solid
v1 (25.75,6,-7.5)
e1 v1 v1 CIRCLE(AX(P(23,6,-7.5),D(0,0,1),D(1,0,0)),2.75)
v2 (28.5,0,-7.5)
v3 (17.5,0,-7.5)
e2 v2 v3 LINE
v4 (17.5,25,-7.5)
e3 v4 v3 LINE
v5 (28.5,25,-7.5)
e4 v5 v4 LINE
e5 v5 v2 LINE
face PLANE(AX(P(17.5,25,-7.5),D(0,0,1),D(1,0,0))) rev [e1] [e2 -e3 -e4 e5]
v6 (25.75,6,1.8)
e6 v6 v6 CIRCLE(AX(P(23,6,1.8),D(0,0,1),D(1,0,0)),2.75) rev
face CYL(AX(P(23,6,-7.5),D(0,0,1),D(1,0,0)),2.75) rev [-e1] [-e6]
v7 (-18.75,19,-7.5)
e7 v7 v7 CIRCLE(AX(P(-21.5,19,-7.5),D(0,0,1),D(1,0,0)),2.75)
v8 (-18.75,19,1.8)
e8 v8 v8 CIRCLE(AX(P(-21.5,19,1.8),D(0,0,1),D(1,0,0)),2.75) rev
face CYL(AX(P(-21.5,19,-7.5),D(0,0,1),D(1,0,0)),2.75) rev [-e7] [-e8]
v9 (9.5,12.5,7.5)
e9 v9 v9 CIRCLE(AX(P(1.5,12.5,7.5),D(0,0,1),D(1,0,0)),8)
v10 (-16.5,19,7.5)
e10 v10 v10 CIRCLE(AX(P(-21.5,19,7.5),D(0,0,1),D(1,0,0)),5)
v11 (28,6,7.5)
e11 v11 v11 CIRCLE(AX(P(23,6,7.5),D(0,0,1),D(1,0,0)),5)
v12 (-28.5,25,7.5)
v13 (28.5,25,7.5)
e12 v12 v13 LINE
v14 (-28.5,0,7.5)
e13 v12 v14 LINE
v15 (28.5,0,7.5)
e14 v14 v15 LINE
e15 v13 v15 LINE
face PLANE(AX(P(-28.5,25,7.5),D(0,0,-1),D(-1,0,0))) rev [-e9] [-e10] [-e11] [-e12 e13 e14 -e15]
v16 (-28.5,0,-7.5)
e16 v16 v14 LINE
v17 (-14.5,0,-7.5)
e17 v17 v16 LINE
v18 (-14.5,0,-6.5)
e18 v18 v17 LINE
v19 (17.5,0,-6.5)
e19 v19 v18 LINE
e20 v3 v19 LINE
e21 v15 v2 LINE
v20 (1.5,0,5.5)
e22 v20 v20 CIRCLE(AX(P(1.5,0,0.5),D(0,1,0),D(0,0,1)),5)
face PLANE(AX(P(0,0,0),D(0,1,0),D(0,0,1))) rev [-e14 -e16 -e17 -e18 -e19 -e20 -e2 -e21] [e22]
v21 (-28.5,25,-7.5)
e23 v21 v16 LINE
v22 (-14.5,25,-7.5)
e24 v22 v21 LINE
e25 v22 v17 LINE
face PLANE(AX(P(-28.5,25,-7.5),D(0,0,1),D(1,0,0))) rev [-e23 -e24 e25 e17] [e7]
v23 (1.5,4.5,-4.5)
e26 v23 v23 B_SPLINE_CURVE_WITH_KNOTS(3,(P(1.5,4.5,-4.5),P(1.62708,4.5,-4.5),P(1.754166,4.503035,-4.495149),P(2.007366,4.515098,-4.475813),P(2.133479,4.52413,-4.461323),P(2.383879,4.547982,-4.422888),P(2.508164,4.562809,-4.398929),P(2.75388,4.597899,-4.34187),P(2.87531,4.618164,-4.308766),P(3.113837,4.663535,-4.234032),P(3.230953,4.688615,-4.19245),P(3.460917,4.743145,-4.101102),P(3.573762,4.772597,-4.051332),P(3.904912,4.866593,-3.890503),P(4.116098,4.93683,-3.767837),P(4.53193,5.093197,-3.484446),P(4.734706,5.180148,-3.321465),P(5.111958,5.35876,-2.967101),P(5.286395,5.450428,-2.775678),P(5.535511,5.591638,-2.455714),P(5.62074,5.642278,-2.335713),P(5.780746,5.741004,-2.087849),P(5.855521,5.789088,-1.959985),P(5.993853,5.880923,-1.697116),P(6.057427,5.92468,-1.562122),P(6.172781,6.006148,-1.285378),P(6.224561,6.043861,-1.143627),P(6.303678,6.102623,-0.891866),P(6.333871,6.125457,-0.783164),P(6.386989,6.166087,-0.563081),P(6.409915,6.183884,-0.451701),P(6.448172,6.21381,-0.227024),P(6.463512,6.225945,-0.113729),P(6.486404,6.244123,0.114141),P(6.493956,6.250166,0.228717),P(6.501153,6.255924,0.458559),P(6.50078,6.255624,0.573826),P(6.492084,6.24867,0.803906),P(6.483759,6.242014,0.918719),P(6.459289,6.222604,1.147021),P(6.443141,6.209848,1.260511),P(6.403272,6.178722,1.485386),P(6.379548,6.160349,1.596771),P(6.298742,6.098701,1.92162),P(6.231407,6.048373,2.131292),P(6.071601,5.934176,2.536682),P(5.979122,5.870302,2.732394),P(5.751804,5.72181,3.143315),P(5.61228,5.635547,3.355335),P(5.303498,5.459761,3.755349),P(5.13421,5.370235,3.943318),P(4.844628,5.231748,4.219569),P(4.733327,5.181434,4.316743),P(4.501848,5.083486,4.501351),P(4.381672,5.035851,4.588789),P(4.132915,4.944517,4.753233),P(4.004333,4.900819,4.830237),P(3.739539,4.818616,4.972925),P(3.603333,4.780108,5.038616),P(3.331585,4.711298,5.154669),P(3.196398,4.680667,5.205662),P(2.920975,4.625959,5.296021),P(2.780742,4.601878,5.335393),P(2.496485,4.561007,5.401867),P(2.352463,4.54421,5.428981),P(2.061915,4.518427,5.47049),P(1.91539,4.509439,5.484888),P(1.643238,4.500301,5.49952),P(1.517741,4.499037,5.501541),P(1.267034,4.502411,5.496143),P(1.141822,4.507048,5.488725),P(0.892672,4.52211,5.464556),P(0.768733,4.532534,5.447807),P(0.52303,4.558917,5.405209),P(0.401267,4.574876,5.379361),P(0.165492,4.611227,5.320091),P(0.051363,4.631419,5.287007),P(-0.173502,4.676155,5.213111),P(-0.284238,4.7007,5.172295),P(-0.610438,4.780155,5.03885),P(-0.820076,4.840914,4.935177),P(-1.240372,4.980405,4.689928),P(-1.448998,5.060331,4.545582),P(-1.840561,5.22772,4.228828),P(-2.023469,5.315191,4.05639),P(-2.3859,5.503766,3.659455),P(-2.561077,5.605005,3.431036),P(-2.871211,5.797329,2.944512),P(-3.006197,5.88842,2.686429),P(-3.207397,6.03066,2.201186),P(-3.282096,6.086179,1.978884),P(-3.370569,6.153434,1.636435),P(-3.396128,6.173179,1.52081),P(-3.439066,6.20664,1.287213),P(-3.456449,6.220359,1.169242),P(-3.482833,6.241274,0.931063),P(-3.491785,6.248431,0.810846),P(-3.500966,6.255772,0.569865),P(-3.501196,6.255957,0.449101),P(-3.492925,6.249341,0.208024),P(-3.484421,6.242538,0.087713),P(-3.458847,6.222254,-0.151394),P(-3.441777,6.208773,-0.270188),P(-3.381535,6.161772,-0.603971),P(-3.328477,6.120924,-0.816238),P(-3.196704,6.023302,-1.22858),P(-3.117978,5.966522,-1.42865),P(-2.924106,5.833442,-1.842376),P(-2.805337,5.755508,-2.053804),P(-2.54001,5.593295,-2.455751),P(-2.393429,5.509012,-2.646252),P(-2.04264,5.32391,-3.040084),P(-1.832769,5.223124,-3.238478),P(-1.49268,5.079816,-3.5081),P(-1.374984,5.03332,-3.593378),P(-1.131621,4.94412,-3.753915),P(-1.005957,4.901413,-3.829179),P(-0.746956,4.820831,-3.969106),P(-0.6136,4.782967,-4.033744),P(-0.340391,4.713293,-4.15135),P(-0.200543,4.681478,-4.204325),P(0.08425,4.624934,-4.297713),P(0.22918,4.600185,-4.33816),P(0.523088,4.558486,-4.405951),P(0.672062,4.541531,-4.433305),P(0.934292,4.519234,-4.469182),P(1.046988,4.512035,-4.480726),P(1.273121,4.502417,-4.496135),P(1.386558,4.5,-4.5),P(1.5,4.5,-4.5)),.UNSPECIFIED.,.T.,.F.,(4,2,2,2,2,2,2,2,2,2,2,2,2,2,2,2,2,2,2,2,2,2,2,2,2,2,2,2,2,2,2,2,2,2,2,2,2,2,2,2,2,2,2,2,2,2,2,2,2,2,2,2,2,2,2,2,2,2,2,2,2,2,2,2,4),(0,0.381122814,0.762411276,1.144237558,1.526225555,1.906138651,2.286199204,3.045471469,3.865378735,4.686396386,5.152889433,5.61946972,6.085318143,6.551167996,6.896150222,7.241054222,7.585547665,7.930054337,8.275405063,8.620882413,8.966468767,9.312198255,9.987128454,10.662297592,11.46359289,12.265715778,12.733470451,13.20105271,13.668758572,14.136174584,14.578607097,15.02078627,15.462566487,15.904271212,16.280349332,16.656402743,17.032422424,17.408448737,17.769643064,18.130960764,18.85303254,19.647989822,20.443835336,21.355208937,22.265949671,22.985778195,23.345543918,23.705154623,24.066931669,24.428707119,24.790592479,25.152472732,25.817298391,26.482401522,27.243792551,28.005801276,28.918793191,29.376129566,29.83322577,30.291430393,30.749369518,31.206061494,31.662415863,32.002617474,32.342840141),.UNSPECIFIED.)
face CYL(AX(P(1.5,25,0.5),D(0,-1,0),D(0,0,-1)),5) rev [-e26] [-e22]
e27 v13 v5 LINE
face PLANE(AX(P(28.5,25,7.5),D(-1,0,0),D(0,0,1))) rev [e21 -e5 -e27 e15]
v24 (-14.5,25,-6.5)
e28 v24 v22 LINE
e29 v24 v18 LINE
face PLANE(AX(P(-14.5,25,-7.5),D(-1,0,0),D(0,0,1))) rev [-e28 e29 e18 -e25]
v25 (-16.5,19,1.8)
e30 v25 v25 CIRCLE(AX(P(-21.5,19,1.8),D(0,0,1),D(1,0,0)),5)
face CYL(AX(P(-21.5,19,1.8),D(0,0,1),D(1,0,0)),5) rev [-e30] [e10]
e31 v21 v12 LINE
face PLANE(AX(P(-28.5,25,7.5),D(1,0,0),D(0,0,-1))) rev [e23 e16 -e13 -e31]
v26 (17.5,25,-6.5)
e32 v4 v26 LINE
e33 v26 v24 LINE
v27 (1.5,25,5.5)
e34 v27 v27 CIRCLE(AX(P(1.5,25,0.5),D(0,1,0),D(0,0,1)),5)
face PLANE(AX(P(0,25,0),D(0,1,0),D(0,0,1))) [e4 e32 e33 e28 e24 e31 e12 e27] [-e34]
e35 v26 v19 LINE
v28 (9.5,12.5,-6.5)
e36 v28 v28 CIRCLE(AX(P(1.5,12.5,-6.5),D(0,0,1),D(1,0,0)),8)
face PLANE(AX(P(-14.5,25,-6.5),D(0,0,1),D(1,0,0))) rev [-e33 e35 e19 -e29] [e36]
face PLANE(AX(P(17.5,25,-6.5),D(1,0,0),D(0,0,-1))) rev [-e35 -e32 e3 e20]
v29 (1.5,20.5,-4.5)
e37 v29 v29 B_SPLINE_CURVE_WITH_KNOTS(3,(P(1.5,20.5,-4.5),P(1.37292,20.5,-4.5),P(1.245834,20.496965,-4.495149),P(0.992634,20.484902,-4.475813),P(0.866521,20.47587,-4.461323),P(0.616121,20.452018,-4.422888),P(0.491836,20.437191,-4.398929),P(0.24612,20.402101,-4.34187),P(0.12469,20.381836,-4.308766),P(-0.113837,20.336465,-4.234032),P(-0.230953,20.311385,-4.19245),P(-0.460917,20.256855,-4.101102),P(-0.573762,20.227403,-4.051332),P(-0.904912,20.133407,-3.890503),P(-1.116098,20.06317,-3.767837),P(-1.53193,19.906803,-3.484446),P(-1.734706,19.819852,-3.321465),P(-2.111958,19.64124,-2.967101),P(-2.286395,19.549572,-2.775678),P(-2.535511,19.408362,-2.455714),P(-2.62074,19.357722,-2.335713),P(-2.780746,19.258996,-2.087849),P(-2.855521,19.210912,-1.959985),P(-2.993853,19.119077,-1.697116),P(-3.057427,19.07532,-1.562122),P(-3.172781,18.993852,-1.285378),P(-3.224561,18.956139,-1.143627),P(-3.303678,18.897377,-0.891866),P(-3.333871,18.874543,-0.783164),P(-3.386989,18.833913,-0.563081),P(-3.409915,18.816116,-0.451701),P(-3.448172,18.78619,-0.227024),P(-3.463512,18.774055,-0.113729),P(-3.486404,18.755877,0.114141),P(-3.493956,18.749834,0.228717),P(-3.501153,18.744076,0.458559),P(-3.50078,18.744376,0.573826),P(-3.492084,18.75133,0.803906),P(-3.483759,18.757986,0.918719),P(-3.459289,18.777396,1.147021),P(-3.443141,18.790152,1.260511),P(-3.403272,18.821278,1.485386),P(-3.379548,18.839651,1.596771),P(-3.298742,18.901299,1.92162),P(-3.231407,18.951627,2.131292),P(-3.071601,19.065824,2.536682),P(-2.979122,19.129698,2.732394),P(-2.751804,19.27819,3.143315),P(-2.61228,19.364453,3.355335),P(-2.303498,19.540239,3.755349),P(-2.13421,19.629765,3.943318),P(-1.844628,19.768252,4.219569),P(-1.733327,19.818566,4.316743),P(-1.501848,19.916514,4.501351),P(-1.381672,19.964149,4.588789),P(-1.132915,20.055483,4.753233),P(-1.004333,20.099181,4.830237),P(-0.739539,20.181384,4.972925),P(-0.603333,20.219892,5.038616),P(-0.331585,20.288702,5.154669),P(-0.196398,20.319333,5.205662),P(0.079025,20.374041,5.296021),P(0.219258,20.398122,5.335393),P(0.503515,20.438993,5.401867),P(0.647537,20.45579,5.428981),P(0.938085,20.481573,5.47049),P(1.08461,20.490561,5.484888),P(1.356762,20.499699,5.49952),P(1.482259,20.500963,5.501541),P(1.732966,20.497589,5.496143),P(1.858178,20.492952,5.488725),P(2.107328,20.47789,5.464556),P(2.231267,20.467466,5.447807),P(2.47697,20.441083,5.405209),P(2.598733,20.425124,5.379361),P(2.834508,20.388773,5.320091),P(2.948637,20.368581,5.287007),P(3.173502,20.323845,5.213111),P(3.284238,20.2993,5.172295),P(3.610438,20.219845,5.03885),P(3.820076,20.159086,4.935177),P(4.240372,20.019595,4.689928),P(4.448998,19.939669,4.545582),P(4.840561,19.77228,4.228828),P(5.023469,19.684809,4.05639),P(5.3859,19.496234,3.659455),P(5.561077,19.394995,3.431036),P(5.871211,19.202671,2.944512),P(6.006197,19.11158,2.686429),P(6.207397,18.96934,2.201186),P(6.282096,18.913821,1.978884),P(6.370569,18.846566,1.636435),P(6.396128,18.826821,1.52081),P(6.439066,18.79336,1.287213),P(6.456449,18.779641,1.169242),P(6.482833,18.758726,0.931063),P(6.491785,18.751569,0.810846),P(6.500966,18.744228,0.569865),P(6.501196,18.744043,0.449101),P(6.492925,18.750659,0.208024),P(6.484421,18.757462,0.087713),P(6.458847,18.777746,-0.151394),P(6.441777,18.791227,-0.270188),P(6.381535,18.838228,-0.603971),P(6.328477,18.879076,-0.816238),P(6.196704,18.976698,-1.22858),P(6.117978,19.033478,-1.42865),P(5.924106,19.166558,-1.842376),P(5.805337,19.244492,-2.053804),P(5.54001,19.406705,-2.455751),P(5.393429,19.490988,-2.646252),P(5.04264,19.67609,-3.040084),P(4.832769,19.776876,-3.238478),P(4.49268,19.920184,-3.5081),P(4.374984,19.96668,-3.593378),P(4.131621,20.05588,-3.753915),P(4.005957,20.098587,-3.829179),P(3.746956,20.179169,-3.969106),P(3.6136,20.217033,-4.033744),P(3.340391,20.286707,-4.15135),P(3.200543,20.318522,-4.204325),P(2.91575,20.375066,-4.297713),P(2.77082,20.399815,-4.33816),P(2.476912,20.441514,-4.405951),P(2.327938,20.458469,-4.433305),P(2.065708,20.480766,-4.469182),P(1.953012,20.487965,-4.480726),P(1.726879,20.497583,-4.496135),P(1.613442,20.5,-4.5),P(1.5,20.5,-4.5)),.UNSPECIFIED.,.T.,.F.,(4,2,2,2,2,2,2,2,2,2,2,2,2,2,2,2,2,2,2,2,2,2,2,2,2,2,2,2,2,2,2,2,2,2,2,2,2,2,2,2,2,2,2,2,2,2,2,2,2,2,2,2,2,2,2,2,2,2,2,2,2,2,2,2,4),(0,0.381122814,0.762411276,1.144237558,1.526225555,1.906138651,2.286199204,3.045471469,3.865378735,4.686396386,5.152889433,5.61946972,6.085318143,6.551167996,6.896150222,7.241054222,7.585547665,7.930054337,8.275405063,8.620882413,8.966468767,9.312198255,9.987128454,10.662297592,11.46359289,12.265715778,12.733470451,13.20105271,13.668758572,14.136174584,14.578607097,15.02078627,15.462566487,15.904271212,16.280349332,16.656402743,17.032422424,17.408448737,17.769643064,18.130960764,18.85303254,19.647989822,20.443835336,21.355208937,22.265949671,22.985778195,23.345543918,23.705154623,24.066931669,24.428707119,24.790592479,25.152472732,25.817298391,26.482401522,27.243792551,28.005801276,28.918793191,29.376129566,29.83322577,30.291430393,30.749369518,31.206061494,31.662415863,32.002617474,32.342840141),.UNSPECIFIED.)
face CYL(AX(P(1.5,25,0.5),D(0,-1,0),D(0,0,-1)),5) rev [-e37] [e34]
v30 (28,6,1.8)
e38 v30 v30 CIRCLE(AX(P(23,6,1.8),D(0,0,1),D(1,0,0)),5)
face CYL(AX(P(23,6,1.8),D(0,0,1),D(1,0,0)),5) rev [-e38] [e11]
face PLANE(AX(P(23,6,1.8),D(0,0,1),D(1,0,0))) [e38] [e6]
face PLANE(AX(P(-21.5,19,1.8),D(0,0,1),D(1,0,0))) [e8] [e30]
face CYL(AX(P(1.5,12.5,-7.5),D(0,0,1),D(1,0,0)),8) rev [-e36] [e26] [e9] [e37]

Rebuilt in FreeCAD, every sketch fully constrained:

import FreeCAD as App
import Part
import Sketcher
Q = App.Units.Quantity

doc = App.newDocument("Part")
body = doc.addObject("PartDesign::Body", "Body")

sketch1 = body.newObject("Sketcher::SketchObject", "Sketch")
sketch1.AttachmentSupport = (doc.getObject("XZ_Plane"), [""])
sketch1.MapMode = "FlatFace"
sketch1.addGeometry([
    Part.LineSegment(App.Vector(-14.5, -6.5, 0), App.Vector(-14.5, -7.5, 0)),
    Part.LineSegment(App.Vector(-14.5, -7.5, 0), App.Vector(-28.5, -7.5, 0)),
    Part.LineSegment(App.Vector(-28.5, -7.5, 0), App.Vector(-28.5, 7.5, 0)),
    Part.LineSegment(App.Vector(-28.5, 7.5, 0), App.Vector(28.5, 7.5, 0)),
    Part.LineSegment(App.Vector(28.5, 7.5, 0), App.Vector(28.5, -7.5, 0)),
    Part.LineSegment(App.Vector(28.5, -7.5, 0), App.Vector(17.5, -7.5, 0)),
    Part.LineSegment(App.Vector(17.5, -7.5, 0), App.Vector(17.5, -6.5, 0)),
    Part.LineSegment(App.Vector(17.5, -6.5, 0), App.Vector(-14.5, -6.5, 0)),
    Part.Circle(App.Vector(1.5, 0.5, 0), App.Vector(0, 0, 1), 5),
], False)
sketch1.addConstraint([
    Sketcher.Constraint("Coincident", 0, 2, 1, 1),
    Sketcher.Constraint("Coincident", 1, 2, 2, 1),
    Sketcher.Constraint("Coincident", 2, 2, 3, 1),
    Sketcher.Constraint("Coincident", 3, 2, 4, 1),
    Sketcher.Constraint("Coincident", 4, 2, 5, 1),
    Sketcher.Constraint("Coincident", 5, 2, 6, 1),
    Sketcher.Constraint("Coincident", 6, 2, 7, 1),
    Sketcher.Constraint("Coincident", 7, 2, 0, 1),
    Sketcher.Constraint("Vertical", 0),
    Sketcher.Constraint("Horizontal", 1),
    Sketcher.Constraint("Vertical", 2),
    Sketcher.Constraint("Horizontal", 3),
    Sketcher.Constraint("Vertical", 4),
    Sketcher.Constraint("Horizontal", 5),
    Sketcher.Constraint("Vertical", 6),
    Sketcher.Constraint("Horizontal", 7),
    Sketcher.Constraint("Symmetric", 1, 2, 3, 2, -1, 1),
    Sketcher.Constraint("Horizontal", 1, 2, 4, 2),
    Sketcher.Constraint("Diameter", 8, Q("10 mm")),
    Sketcher.Constraint("DistanceX", 1, 2, 1, 1, Q("14 mm")),
    Sketcher.Constraint("DistanceX", 3, 1, 3, 2, Q("57 mm")),
    Sketcher.Constraint("DistanceX", 5, 2, 5, 1, Q("11 mm")),
    Sketcher.Constraint("DistanceY", 0, 2, 0, 1, Q("1 mm")),
    Sketcher.Constraint("DistanceY", 2, 1, 2, 2, Q("15 mm")),
    Sketcher.Constraint("DistanceX", 0, 2, 8, 3, Q("16 mm")),
    Sketcher.Constraint("DistanceY", 0, 2, 8, 3, Q("8 mm")),
])
pad1 = body.newObject("PartDesign::Pad", "Pad")
pad1.Profile = sketch1
pad1.Length = 25
pad1.Reversed = True

sketch2 = body.newObject("Sketcher::SketchObject", "Sketch001")
sketch2.AttachmentSupport = (doc.getObject("XY_Plane"), [""])
sketch2.MapMode = "FlatFace"
sketch2.AttachmentOffset = App.Placement(App.Vector(0, 0, 7.5), App.Rotation())
sketch2.addGeometry([
    Part.Circle(App.Vector(-21.5, 19, 0), App.Vector(0, 0, 1), 2.8),
    Part.Circle(App.Vector(1.5, 12.5, 0), App.Vector(0, 0, 1), 8),
    Part.Circle(App.Vector(23, 6, 0), App.Vector(0, 0, 1), 2.8),
], False)
sketch2.addConstraint([
    Sketcher.Constraint("Equal", 0, 2),
    Sketcher.Constraint("Diameter", 1, Q("16 mm")),
    Sketcher.Constraint("Diameter", 0, Q("5.5 mm")),
    Sketcher.Constraint("DistanceY", -1, 1, 0, 3, Q("19 mm")),
    Sketcher.Constraint("DistanceX", -1, 1, 2, 3, Q("23 mm")),
    Sketcher.Constraint("DistanceY", -1, 1, 2, 3, Q("6 mm")),
    Sketcher.Constraint("DistanceX", 0, 3, 1, 3, Q("23 mm")),
    Sketcher.Constraint("DistanceX", 0, 3, -1, 1, Q("21.5 mm")),
    Sketcher.Constraint("DistanceY", -1, 1, 1, 3, Q("12.5 mm")),
])
pocket1 = body.newObject("PartDesign::Pocket", "Pocket")
pocket1.Profile = sketch2
pocket1.Type = "ThroughAll"

sketch3 = body.newObject("Sketcher::SketchObject", "Sketch002")
sketch3.AttachmentSupport = (doc.getObject("XY_Plane"), [""])
sketch3.MapMode = "FlatFace"
sketch3.AttachmentOffset = App.Placement(App.Vector(0, 0, 7.5), App.Rotation())
sketch3.addGeometry([
    Part.Circle(App.Vector(-22, 19, 0), App.Vector(0, 0, 1), 5),
    Part.Circle(App.Vector(23, 6, 0), App.Vector(0, 0, 1), 5),
], False)
sketch3.addConstraint([
    Sketcher.Constraint("Equal", 0, 1),
    Sketcher.Constraint("Diameter", 0, Q("10 mm")),
    Sketcher.Constraint("DistanceY", -1, 1, 0, 3, Q("19 mm")),
    Sketcher.Constraint("DistanceX", -1, 1, 1, 3, Q("23 mm")),
    Sketcher.Constraint("DistanceY", -1, 1, 1, 3, Q("6 mm")),
    Sketcher.Constraint("DistanceX", 0, 3, -1, 1, Q("21.5 mm")),
])
pocket2 = body.newObject("PartDesign::Pocket", "Pocket001")
pocket2.Profile = sketch3
pocket2.Length = 5.7

doc.recompute()
